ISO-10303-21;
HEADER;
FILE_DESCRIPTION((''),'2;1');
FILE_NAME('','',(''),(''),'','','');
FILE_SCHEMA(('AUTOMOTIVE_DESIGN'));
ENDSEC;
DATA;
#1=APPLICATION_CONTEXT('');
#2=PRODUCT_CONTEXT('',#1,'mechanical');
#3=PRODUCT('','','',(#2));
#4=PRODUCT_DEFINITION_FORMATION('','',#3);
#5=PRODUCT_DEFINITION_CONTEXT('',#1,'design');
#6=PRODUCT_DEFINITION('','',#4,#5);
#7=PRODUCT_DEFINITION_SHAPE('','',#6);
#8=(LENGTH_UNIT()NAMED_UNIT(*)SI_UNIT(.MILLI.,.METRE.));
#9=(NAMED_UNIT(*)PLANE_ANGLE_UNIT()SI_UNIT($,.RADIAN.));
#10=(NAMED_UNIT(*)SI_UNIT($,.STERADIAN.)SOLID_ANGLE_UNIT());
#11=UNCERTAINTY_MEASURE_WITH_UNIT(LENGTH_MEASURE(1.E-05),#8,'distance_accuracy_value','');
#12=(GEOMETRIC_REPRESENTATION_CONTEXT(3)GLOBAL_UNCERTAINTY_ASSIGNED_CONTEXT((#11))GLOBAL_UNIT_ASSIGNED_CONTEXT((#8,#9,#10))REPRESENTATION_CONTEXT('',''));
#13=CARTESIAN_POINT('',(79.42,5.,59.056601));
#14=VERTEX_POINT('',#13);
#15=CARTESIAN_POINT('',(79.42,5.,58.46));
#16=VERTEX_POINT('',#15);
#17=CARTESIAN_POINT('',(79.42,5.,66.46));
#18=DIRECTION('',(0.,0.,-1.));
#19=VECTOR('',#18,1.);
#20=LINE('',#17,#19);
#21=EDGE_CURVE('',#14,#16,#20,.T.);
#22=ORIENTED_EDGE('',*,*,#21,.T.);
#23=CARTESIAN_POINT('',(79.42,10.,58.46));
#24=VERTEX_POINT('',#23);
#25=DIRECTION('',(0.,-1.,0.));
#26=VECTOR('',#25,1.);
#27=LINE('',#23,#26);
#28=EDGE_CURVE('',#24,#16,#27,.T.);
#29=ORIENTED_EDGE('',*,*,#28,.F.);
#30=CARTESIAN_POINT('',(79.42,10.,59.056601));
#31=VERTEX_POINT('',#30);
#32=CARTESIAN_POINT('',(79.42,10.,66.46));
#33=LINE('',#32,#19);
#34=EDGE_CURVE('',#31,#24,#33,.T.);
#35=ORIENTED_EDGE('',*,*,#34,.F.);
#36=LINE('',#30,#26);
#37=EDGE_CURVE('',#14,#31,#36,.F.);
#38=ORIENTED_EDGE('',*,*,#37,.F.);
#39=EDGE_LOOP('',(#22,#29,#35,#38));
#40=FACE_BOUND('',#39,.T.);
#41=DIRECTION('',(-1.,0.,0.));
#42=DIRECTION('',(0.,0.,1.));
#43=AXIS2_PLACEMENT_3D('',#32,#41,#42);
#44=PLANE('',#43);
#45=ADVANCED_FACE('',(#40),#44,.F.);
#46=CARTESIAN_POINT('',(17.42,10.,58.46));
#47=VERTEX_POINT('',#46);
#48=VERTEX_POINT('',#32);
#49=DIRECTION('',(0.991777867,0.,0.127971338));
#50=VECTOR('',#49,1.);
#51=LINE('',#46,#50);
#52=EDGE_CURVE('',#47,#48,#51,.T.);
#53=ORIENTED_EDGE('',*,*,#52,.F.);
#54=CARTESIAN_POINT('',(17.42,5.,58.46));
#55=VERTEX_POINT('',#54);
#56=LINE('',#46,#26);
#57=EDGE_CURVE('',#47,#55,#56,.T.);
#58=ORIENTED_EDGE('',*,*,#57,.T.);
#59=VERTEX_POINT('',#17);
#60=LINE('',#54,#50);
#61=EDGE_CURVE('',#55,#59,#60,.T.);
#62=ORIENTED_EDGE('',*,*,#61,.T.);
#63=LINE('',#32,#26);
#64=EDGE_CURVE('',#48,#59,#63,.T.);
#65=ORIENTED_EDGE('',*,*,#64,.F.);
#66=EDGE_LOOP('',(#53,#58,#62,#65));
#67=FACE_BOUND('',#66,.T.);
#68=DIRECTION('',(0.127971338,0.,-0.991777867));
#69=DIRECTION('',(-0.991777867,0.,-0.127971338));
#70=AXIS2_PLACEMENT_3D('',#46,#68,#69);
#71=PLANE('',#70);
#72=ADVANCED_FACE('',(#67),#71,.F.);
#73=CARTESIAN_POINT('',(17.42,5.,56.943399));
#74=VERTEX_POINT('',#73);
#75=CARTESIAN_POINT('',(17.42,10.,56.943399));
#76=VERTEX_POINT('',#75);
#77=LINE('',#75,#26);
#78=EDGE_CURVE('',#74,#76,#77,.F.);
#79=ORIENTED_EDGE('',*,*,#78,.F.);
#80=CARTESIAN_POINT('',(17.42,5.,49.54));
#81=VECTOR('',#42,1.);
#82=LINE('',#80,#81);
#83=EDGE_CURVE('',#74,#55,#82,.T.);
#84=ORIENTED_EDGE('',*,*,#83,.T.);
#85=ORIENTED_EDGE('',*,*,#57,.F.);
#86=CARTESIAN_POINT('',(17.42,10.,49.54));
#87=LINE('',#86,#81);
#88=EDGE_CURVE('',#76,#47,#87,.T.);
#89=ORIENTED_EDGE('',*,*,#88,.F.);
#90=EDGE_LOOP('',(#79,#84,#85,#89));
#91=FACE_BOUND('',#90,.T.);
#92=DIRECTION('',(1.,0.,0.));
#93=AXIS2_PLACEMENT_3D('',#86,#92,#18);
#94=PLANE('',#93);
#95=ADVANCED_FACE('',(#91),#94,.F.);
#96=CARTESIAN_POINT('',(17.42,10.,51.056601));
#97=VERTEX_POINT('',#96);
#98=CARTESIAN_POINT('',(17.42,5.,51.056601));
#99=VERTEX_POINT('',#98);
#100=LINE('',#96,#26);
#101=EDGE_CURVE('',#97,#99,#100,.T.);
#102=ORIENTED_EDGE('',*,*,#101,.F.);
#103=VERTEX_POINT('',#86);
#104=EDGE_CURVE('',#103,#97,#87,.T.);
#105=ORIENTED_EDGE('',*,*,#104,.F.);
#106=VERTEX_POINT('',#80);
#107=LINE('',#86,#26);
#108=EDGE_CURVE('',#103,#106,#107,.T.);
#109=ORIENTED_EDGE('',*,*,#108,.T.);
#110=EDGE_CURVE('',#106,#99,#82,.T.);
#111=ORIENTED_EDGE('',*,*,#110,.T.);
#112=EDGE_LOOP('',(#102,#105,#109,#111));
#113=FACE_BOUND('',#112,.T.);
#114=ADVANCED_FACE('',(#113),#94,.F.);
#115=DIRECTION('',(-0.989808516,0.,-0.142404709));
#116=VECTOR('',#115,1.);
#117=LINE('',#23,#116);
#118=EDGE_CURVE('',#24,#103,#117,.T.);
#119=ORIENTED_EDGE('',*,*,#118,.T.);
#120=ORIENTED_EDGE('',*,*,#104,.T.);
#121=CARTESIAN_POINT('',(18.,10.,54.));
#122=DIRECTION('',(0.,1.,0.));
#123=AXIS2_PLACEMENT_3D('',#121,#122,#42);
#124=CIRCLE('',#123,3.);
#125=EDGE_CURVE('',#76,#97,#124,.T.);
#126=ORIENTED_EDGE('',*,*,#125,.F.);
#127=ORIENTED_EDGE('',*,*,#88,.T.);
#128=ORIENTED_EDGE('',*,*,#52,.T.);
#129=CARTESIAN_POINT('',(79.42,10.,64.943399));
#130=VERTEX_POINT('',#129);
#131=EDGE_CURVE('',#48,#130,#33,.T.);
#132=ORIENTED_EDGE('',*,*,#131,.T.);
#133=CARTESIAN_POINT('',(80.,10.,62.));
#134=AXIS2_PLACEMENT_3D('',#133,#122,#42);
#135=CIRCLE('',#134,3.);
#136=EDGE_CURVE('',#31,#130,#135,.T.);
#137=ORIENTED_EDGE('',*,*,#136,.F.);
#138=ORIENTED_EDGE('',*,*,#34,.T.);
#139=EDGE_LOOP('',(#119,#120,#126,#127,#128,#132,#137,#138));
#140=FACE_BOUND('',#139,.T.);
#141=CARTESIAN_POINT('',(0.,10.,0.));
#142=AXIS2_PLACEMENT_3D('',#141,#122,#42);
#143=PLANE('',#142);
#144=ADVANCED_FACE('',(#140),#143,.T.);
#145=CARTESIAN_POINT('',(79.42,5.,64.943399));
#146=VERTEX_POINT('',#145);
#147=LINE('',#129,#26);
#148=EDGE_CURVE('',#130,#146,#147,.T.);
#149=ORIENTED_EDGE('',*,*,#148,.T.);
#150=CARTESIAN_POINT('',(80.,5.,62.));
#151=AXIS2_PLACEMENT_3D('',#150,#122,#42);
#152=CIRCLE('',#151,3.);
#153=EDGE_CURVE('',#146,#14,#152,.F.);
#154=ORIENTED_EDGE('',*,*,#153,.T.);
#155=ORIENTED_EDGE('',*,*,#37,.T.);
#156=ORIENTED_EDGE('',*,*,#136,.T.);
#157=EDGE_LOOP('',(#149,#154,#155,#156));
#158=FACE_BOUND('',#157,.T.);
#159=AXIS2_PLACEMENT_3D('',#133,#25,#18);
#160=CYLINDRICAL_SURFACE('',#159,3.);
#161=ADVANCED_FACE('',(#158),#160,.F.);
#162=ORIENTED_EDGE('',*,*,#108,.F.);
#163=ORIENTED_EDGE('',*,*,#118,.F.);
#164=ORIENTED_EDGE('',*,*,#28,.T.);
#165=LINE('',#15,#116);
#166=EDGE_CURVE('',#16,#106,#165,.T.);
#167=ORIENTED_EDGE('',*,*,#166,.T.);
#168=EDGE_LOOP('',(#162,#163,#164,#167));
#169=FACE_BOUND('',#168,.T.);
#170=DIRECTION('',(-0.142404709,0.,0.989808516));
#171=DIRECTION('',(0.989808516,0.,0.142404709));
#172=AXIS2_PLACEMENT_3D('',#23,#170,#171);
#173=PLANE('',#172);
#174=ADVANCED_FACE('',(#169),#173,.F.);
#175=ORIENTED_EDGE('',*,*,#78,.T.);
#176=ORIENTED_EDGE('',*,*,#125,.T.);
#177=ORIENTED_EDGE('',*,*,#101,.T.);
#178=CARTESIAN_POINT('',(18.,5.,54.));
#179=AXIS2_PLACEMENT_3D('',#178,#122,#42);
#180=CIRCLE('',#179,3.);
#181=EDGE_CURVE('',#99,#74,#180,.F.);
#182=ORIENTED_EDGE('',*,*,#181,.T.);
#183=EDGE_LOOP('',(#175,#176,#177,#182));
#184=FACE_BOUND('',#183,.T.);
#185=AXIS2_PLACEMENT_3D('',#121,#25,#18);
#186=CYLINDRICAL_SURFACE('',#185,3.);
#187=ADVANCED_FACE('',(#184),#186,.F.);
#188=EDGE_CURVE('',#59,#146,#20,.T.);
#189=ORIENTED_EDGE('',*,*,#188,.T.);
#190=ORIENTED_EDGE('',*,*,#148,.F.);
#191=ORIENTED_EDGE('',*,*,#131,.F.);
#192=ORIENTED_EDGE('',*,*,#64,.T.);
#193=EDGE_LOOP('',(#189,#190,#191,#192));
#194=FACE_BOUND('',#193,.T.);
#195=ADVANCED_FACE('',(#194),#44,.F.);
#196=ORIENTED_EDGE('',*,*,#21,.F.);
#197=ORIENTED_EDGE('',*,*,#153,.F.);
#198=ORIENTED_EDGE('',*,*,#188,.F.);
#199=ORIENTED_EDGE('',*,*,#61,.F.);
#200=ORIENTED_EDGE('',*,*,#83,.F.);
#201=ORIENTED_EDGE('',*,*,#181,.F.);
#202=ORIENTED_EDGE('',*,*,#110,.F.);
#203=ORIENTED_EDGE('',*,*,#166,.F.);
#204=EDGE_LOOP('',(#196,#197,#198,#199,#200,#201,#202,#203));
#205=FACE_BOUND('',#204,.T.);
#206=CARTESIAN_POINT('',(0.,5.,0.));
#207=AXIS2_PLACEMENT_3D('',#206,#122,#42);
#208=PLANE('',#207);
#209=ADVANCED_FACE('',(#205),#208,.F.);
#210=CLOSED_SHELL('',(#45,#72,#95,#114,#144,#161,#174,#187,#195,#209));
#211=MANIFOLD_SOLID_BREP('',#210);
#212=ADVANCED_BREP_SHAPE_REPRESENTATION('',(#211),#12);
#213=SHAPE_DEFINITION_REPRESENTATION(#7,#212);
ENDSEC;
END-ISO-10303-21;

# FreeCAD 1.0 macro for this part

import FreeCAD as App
import Part
import Sketcher
from FreeCAD import Vector
Q = App.Units.Quantity

doc = App.newDocument("Part")
body = doc.addObject("PartDesign::Body", "Body")

# Sketch on XZ plane
sketch1 = doc.addObject("Sketcher::SketchObject", "Sketch")
body.addObject(sketch1)
sketch1.AttachmentSupport = (doc.XZ_Plane, [""])
sketch1.MapMode = "FlatFace"
sketch1.AttachmentOffset = App.Placement(Vector(0, 0, -5), App.Rotation())
sketch1.addGeometry([
    Part.LineSegment(Vector(17.42, 58.46, 0), Vector(79.42, 66.46, 0)),
    Part.LineSegment(Vector(79.42, 66.46, 0), Vector(79.42, 58.46, 0)),
    Part.LineSegment(Vector(79.42, 58.46, 0), Vector(17.42, 49.54, 0)),
    Part.LineSegment(Vector(17.42, 49.54, 0), Vector(17.42, 58.46, 0)),
], False)
sketch1.addConstraint([
    Sketcher.Constraint("Coincident", 0, 2, 1, 1),
    Sketcher.Constraint("Coincident", 1, 2, 2, 1),
    Sketcher.Constraint("Coincident", 2, 2, 3, 1),
    Sketcher.Constraint("Coincident", 3, 2, 0, 1),
    Sketcher.Constraint("Vertical", 1),
    Sketcher.Constraint("Vertical", 3),
    Sketcher.Constraint("Horizontal", 1, 2, 3, 2),
    Sketcher.Constraint("DistanceY", 1, 2, 1, 1, Q("8 mm")),
    Sketcher.Constraint("DistanceX", 2, 2, 1, 2, Q("62 mm")),
    Sketcher.Constraint("DistanceY", 3, 1, 3, 2, Q("8.92 mm")),
    Sketcher.Constraint("DistanceX", -1, 1, 0, 2, Q("79.42 mm")),
    Sketcher.Constraint("DistanceY", -1, 1, 0, 2, Q("66.46 mm")),
])
pad1 = doc.addObject("PartDesign::Pad", "Pad")
body.addObject(pad1)
pad1.Profile = sketch1
pad1.Length = 5
pad1.Reversed = True

# Sketch on XZ plane
sketch2 = doc.addObject("Sketcher::SketchObject", "Sketch001")
body.addObject(sketch2)
sketch2.AttachmentSupport = (doc.XZ_Plane, [""])
sketch2.MapMode = "FlatFace"
sketch2.addGeometry([
    Part.Circle(Vector(18, 54, 0), Vector(0, 0, 1), 3),
    Part.Circle(Vector(80, 62, 0), Vector(0, 0, 1), 3),
], False)
sketch2.addConstraint([
    Sketcher.Constraint("Equal", 0, 1),
    Sketcher.Constraint("Diameter", 0, Q("6 mm")),
    Sketcher.Constraint("DistanceX", -1, 1, 0, 3, Q("18 mm")),
    Sketcher.Constraint("DistanceY", -1, 1, 0, 3, Q("54 mm")),
    Sketcher.Constraint("DistanceX", -1, 1, 1, 3, Q("80 mm")),
    Sketcher.Constraint("DistanceY", -1, 1, 1, 3, Q("62 mm")),
])
pocket1 = doc.addObject("PartDesign::Pocket", "Pocket")
body.addObject(pocket1)
pocket1.Profile = sketch2
pocket1.Type = "ThroughAll"

doc.recompute()
